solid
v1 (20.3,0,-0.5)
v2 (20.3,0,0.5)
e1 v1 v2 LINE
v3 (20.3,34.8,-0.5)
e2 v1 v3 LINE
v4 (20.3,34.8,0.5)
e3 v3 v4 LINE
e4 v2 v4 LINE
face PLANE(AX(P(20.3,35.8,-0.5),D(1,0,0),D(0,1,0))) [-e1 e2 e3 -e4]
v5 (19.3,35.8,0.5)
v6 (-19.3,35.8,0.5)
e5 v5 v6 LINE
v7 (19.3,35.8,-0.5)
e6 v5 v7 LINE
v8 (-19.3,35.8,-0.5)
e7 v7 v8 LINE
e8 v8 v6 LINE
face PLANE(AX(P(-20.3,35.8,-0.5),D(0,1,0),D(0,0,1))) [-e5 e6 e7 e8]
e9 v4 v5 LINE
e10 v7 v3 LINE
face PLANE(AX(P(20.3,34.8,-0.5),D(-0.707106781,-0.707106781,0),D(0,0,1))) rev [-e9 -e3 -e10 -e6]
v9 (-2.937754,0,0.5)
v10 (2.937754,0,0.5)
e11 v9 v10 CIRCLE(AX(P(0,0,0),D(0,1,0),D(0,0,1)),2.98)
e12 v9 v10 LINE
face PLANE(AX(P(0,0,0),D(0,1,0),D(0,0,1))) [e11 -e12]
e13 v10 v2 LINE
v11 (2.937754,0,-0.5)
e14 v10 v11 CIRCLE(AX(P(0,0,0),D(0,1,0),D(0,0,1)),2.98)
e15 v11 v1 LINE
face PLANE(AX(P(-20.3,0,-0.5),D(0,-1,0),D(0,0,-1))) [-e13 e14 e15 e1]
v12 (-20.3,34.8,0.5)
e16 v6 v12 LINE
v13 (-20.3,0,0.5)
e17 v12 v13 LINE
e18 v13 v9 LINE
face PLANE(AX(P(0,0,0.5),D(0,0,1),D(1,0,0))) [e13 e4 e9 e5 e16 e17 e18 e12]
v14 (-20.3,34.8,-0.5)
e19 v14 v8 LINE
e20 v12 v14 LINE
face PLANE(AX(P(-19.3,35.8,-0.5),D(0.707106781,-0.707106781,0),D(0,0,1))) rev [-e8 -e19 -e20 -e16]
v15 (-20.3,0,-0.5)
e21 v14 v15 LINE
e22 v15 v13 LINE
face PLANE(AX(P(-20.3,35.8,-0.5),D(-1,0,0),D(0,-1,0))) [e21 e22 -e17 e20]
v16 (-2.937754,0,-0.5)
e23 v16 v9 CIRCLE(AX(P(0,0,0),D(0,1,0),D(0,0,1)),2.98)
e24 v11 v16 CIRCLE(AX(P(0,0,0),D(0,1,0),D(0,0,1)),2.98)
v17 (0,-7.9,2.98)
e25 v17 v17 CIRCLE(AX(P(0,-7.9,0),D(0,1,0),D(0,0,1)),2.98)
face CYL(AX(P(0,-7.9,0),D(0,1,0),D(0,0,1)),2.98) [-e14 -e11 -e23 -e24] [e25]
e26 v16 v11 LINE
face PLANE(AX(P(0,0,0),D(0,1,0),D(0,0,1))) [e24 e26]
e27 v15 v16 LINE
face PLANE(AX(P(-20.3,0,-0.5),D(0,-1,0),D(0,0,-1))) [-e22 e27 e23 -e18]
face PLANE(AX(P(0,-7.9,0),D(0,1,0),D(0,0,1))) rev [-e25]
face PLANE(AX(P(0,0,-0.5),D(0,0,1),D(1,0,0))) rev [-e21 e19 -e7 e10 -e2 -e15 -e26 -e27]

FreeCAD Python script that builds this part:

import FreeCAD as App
import Part
import Sketcher

V = App.Vector
Q = App.Units.Quantity


def edges_at(feature, points):
    """Names of the edges that pass closest to the given points."""
    edges = feature.Shape.Edges
    near = lambda p: min(range(len(edges)), key=lambda i: edges[i].distToShape(Part.Vertex(*p))[0])
    return sorted({f"Edge{near(p) + 1}" for p in points})


def add_polygon(sketch, points):
    """Adds a closed chain of lines whose ends are joined by coincident constraints."""
    first, n = sketch.GeometryCount, len(points)
    for a, b in zip(points, points[1:] + points[:1]):
        sketch.addGeometry(Part.LineSegment(App.Vector(*a, 0), App.Vector(*b, 0)), False)
    for i in range(n):
        sketch.addConstraint(Sketcher.Constraint("Coincident", first + i, 2, first + (i + 1) % n, 1))

doc = App.newDocument("Part")
body = doc.addObject("PartDesign::Body", "Body")

# Sketch on XZ plane
sketch1 = body.newObject("Sketcher::SketchObject", "Sketch")
sketch1.AttachmentSupport = (doc.getObject("XZ_Plane"), [""])
sketch1.MapMode = "FlatFace"
sketch1.addGeometry(Part.Circle(V(0, 0, 0), V(0, 0, 1), 2.98), False)
sketch1.addConstraint(Sketcher.Constraint("Coincident", 0, 3, -1, 1))
sketch1.addConstraint(Sketcher.Constraint("Diameter", 0, Q("5.96 mm")))
pad1 = body.newObject("PartDesign::Pad", "Pad")
pad1.Profile = sketch1
pad1.Length = 7.9

# Sketch on XY plane
sketch2 = body.newObject("Sketcher::SketchObject", "Sketch001")
sketch2.AttachmentSupport = (doc.getObject("XY_Plane"), [""])
sketch2.MapMode = "FlatFace"
add_polygon(sketch2, [(-20.3, 35.8), (-20.3, 0), (20.3, 0), (20.3, 35.8)])  # lines 0-3
sketch2.addConstraint(Sketcher.Constraint("Vertical", 0))
sketch2.addConstraint(Sketcher.Constraint("Horizontal", 1))
sketch2.addConstraint(Sketcher.Constraint("Vertical", 2))
sketch2.addConstraint(Sketcher.Constraint("Horizontal", 3))
sketch2.addConstraint(Sketcher.Constraint("Symmetric", 0, 2, 1, 2, -1, 1))
sketch2.addConstraint(Sketcher.Constraint("DistanceX", 1, 1, 1, 2, Q("40.6 mm")))
sketch2.addConstraint(Sketcher.Constraint("DistanceY", 0, 2, 0, 1, Q("35.8 mm")))
pad2 = body.newObject("PartDesign::Pad", "Pad001")
pad2.Profile = sketch2
pad2.Type = "TwoLengths"
pad2.Length = 0.5
pad2.Length2 = 0.5
doc.recompute()

chamfer = body.newObject("PartDesign::Chamfer", "Chamfer")
chamfer.Base = (pad2, edges_at(pad2, [(-20.3, 35.8, 0), (20.3, 35.8, 0)]))
chamfer.Size = 1

doc.recompute()
